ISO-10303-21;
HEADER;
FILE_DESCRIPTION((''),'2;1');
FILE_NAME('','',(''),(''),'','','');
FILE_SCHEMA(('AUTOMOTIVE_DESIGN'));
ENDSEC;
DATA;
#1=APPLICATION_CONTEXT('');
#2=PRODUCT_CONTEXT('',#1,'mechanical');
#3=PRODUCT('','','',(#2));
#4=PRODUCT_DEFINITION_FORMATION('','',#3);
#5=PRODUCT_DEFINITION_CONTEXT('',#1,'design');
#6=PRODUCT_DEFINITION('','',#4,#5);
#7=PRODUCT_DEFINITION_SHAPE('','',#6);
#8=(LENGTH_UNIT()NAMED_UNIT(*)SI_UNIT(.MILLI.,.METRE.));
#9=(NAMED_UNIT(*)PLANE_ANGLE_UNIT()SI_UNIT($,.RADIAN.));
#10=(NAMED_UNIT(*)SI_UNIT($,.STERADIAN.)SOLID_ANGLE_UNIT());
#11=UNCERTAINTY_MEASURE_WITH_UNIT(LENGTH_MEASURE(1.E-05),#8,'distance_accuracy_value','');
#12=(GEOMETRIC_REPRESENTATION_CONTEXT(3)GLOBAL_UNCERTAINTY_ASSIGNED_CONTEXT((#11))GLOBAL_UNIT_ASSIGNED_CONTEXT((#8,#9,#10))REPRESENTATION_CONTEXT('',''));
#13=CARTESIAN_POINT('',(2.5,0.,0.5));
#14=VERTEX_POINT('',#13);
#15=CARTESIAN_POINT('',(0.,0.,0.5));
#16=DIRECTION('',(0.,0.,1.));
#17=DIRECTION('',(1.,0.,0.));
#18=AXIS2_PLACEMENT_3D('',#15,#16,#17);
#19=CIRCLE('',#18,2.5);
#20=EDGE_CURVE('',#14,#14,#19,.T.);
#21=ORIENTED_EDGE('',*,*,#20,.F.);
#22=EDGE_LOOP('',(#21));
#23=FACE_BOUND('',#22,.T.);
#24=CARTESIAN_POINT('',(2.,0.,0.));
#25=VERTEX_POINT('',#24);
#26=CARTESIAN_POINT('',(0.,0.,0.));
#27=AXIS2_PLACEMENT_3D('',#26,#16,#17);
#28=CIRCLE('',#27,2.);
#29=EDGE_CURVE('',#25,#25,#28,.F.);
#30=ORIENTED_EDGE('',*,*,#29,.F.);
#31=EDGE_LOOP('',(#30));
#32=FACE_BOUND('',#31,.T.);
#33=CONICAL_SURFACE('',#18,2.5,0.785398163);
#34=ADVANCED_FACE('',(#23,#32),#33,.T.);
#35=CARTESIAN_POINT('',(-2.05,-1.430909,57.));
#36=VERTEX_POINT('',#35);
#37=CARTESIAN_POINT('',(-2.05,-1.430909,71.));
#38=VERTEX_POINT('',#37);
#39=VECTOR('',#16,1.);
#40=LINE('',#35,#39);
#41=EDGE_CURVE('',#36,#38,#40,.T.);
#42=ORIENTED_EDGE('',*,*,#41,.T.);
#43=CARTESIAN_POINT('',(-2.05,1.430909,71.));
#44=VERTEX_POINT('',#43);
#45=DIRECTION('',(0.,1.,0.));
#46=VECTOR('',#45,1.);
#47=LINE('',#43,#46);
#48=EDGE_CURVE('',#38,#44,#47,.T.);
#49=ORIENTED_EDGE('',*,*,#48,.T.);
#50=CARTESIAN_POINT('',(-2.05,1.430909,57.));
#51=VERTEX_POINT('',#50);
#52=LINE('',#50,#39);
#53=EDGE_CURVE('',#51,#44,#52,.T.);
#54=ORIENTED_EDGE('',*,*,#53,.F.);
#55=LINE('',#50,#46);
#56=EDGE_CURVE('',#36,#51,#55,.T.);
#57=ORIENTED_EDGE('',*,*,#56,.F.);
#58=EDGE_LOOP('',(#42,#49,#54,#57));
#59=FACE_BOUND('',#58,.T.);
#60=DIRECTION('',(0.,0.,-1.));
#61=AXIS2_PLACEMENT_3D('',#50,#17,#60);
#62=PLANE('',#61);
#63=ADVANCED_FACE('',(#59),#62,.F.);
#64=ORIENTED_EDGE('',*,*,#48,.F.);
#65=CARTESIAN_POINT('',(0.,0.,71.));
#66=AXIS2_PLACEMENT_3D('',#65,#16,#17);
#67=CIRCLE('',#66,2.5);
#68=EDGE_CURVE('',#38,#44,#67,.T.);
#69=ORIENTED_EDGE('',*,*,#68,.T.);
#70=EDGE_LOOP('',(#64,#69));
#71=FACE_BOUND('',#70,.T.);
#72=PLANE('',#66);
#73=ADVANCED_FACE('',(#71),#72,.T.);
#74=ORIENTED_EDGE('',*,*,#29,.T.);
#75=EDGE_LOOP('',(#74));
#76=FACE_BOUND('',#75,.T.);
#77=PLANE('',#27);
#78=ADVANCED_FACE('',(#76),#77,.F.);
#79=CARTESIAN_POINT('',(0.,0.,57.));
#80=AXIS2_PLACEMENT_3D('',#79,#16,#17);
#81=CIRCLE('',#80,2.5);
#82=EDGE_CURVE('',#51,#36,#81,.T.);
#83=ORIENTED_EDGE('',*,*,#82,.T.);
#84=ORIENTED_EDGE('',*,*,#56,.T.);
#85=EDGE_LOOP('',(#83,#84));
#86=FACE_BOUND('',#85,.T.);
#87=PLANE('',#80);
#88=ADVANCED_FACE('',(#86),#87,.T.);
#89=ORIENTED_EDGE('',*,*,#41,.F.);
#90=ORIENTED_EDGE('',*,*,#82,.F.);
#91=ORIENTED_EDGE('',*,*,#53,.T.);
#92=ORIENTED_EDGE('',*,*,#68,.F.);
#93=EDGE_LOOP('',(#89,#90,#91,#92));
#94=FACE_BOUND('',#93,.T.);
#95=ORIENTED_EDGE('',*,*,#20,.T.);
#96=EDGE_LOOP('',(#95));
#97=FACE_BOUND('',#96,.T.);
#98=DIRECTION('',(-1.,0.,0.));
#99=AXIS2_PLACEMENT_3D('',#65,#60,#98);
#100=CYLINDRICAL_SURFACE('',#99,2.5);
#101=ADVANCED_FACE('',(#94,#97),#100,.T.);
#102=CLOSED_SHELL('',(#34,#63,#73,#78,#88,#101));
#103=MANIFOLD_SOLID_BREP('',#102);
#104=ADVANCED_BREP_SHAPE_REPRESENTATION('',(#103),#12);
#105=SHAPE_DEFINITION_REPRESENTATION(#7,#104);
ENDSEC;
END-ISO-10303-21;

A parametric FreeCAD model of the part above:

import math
import FreeCAD as App
import Part
import Sketcher
from FreeCAD import Vector


def edges_at(feature, points):
    """Names of the edges that pass closest to the given points."""
    edges = feature.Shape.Edges
    near = lambda p: min(range(len(edges)), key=lambda i: edges[i].distToShape(Part.Vertex(*p))[0])
    return sorted({f"Edge{near(p) + 1}" for p in points})

doc = App.newDocument("Part")
body = doc.addObject("PartDesign::Body", "Body")

# Sketch on XY plane
sketch1 = body.newObject("Sketcher::SketchObject", "Sketch")
sketch1.AttachmentSupport = (doc.getObject("XY_Plane"), [""])
sketch1.MapMode = "FlatFace"
sketch1.addGeometry(Part.Circle(Vector(0, 0, 0), Vector(0, 0, 1), 2.5), False)
sketch1.addConstraint([
    Sketcher.Constraint("Coincident", 0, 3, -1, 1),
    Sketcher.Constraint("Diameter", 0, 5.0),
])
pad1 = body.newObject("PartDesign::Pad", "Pad")
pad1.Profile = sketch1
pad1.Length = 71

# Sketch on XY plane
sketch2 = body.newObject("Sketcher::SketchObject", "Sketch001")
sketch2.AttachmentSupport = (doc.getObject("XY_Plane"), [""])
sketch2.MapMode = "FlatFace"
sketch2.AttachmentOffset = App.Placement(Vector(0, 0, 71), App.Rotation())
sketch2.addGeometry([
    Part.LineSegment(Vector(-2, -1.4, 0), Vector(-2, 1.4, 0)),
    Part.ArcOfCircle(Part.Circle(Vector(0, 0, 0), Vector(0, 0, 1), 2.5), math.radians(145), math.radians(215)),
], False)
sketch2.addConstraint([
    Sketcher.Constraint("Coincident", 0, 1, 1, 2),
    Sketcher.Constraint("Coincident", 1, 1, 0, 2),
    Sketcher.Constraint("Vertical", 0),
    Sketcher.Constraint("Coincident", 1, 3, -1, 1),
    Sketcher.Constraint("Radius", 1, 2.5),
    Sketcher.Constraint("DistanceX", 0, 1, -1, 1, 2.05),
])
pocket1 = body.newObject("PartDesign::Pocket", "Pocket")
pocket1.Profile = sketch2
pocket1.Length = 14
doc.recompute()

chamfer = body.newObject("PartDesign::Chamfer", "Chamfer")
chamfer.Base = (pocket1, edges_at(pocket1, [(-2.5, 0, 0)]))
chamfer.Size = 0.5

doc.recompute()
